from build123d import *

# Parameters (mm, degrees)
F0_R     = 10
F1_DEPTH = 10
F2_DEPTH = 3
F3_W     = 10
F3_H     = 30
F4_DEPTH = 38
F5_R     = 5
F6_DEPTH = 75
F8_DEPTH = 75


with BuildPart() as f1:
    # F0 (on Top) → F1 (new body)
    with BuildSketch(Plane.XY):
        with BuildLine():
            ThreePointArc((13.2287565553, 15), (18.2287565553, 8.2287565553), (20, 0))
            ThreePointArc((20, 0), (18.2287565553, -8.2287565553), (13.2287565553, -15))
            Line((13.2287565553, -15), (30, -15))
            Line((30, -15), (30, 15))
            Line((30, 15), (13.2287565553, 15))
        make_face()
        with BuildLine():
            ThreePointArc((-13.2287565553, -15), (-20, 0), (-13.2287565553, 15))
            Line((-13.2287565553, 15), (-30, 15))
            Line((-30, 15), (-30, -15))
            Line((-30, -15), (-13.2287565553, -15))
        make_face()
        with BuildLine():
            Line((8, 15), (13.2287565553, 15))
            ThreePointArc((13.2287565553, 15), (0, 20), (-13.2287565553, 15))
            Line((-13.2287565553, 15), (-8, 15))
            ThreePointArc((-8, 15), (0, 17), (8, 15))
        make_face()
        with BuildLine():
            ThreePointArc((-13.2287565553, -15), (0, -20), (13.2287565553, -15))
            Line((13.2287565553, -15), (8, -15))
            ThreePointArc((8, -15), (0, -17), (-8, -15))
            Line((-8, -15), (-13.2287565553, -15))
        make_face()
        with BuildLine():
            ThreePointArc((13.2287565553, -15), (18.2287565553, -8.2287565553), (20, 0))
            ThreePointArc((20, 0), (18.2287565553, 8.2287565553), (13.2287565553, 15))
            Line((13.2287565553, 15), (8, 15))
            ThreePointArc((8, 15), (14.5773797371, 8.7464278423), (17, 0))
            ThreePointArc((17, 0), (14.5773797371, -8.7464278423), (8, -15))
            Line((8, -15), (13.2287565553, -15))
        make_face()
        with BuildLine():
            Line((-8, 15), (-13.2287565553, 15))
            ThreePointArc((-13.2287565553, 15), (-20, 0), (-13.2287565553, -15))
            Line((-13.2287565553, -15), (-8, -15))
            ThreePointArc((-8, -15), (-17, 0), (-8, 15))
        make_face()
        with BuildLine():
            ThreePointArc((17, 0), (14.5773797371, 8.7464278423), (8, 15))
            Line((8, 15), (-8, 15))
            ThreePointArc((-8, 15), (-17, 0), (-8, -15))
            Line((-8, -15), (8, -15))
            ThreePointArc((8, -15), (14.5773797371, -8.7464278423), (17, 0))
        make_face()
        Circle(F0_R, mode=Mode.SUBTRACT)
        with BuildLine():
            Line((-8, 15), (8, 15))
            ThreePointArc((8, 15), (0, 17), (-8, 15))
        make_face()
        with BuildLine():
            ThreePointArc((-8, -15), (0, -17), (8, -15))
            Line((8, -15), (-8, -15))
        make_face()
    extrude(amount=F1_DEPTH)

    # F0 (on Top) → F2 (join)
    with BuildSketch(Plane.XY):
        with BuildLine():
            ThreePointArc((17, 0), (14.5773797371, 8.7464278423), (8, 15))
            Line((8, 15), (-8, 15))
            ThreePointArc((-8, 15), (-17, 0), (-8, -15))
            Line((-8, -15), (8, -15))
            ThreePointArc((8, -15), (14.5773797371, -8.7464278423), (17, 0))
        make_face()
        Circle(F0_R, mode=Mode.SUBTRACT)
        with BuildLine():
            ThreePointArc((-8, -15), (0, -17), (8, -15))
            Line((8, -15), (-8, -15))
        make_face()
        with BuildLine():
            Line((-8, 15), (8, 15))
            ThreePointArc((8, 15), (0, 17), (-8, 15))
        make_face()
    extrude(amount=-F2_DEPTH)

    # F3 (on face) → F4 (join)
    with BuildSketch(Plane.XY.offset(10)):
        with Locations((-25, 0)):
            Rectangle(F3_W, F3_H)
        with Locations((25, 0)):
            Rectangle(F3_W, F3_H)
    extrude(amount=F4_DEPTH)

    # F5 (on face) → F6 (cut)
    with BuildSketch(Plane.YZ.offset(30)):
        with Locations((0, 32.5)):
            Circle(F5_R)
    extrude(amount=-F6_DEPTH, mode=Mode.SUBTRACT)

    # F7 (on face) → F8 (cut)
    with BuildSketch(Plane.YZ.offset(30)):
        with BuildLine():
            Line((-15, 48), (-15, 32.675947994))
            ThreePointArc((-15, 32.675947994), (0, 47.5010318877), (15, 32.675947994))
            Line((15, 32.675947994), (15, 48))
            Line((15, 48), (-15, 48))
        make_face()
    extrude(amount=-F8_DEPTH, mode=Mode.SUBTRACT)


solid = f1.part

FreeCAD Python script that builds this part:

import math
import FreeCAD as App
import Part
import Sketcher

V = App.Vector

doc = App.newDocument("Part")
body = doc.addObject("PartDesign::Body", "Body")

sketch1 = body.newObject("Sketcher::SketchObject", "Sketch")
sketch1.AttachmentSupport = (doc.getObject("XY_Plane"), [""])
sketch1.MapMode = "FlatFace"
sketch1.addGeometry(Part.LineSegment(V(13.228757, -15, 0), V(30, -15, 0)), False)
sketch1.addGeometry(Part.LineSegment(V(30, -15, 0), V(30, 15, 0)), False)
sketch1.addGeometry(Part.LineSegment(V(30, 15, 0), V(13.228757, 15, 0)), False)
sketch1.addGeometry(Part.ArcOfCircle(Part.Circle(V(0, 0, 0), V(0, 0, 1), 20), math.radians(48.590378), math.radians(131.409622)), False)
sketch1.addGeometry(Part.LineSegment(V(-13.228757, 15, 0), V(-30, 15, 0)), False)
sketch1.addGeometry(Part.LineSegment(V(-30, 15, 0), V(-30, -15, 0)), False)
sketch1.addGeometry(Part.LineSegment(V(-30, -15, 0), V(-13.228757, -15, 0)), False)
sketch1.addGeometry(Part.ArcOfCircle(Part.Circle(V(0, 0, 0), V(0, 0, 1), 20), math.radians(-131.409622), math.radians(-48.590378)), False)
sketch1.addGeometry(Part.Circle(V(0, 0, 0), V(0, 0, 1), 10), False)
sketch1.addConstraint(Sketcher.Constraint("Coincident", 0, 2, 1, 1))
sketch1.addConstraint(Sketcher.Constraint("Coincident", 1, 2, 2, 1))
sketch1.addConstraint(Sketcher.Constraint("Coincident", 2, 2, 3, 1))
sketch1.addConstraint(Sketcher.Constraint("Coincident", 3, 2, 4, 1))
sketch1.addConstraint(Sketcher.Constraint("Coincident", 4, 2, 5, 1))
sketch1.addConstraint(Sketcher.Constraint("Coincident", 5, 2, 6, 1))
sketch1.addConstraint(Sketcher.Constraint("Coincident", 6, 2, 7, 1))
sketch1.addConstraint(Sketcher.Constraint("Coincident", 7, 2, 0, 1))
sketch1.addConstraint(Sketcher.Constraint("Horizontal", 0))
sketch1.addConstraint(Sketcher.Constraint("Vertical", 1))
sketch1.addConstraint(Sketcher.Constraint("Horizontal", 2))
sketch1.addConstraint(Sketcher.Constraint("Horizontal", 4))
sketch1.addConstraint(Sketcher.Constraint("Vertical", 5))
sketch1.addConstraint(Sketcher.Constraint("Horizontal", 6))
sketch1.addConstraint(Sketcher.Constraint("Coincident", 3, 3, -1, 1))
sketch1.addConstraint(Sketcher.Constraint("Coincident", 7, 3, -1, 1))
sketch1.addConstraint(Sketcher.Constraint("Coincident", 8, 3, -1, 1))
sketch1.addConstraint(Sketcher.Constraint("Equal", 3, 7))
sketch1.addConstraint(Sketcher.Constraint("Symmetric", 0, 2, 4, 2, -1, 1))
sketch1.addConstraint(Sketcher.Constraint("Horizontal", 2, 2, 3, 2))
sketch1.addConstraint(Sketcher.Constraint("Horizontal", 0, 2, 5, 2))
sketch1.addConstraint(Sketcher.Constraint("Diameter", 8, 20.0))
sketch1.addConstraint(Sketcher.Constraint("Radius", 3, 20.0))
sketch1.addConstraint(Sketcher.Constraint("DistanceY", 1, 1, 1, 2, 30.0))
sketch1.addConstraint(Sketcher.Constraint("DistanceX", -1, 1, 0, 2, 30.0))
pad1 = body.newObject("PartDesign::Pad", "Pad")
pad1.Profile = sketch1
pad1.Length = 10

sketch2 = body.newObject("Sketcher::SketchObject", "Sketch001")
sketch2.AttachmentSupport = (doc.getObject("XY_Plane"), [""])
sketch2.MapMode = "FlatFace"
sketch2.addGeometry(Part.ArcOfCircle(Part.Circle(V(0, 0, 0), V(0, 0, 1), 17), math.radians(0), math.radians(61.927513)), False)
sketch2.addGeometry(Part.ArcOfCircle(Part.Circle(V(0, 0, 0), V(0, 0, 1), 17), math.radians(61.927513), math.radians(298.072487)), False)
sketch2.addGeometry(Part.ArcOfCircle(Part.Circle(V(0, 0, 0), V(0, 0, 1), 17), math.radians(-61.927513), math.radians(0)), False)
sketch2.addGeometry(Part.Circle(V(0, 0, 0), V(0, 0, 1), 10), False)
sketch2.addConstraint(Sketcher.Constraint("Tangent", 0, 2, 1, 1))
sketch2.addConstraint(Sketcher.Constraint("Tangent", 1, 2, 2, 1))
sketch2.addConstraint(Sketcher.Constraint("Tangent", 2, 2, 0, 1))
sketch2.addConstraint(Sketcher.Constraint("Coincident", 0, 3, -1, 1))
sketch2.addConstraint(Sketcher.Constraint("Coincident", 3, 3, -1, 1))
sketch2.addConstraint(Sketcher.Constraint("PointOnObject", 2, 2, -1))
sketch2.addConstraint(Sketcher.Constraint("Vertical", 0, 2, 1, 2))
sketch2.addConstraint(Sketcher.Constraint("Diameter", 3, 20.0))
sketch2.addConstraint(Sketcher.Constraint("Radius", 0, 17.0))
sketch2.addConstraint(Sketcher.Constraint("DistanceX", -1, 1, 0, 2, 8.0))
pad2 = body.newObject("PartDesign::Pad", "Pad001")
pad2.Profile = sketch2
pad2.Length = 3
pad2.Reversed = True

sketch3 = body.newObject("Sketcher::SketchObject", "Sketch002")
sketch3.AttachmentSupport = (doc.getObject("XY_Plane"), [""])
sketch3.MapMode = "FlatFace"
sketch3.AttachmentOffset = App.Placement(V(0, 0, 10), App.Rotation())
sketch3.addGeometry(Part.LineSegment(V(-30, 15, 0), V(-30, -15, 0)), False)
sketch3.addGeometry(Part.LineSegment(V(-30, -15, 0), V(-20, -15, 0)), False)
sketch3.addGeometry(Part.LineSegment(V(-20, -15, 0), V(-20, 15, 0)), False)
sketch3.addGeometry(Part.LineSegment(V(-20, 15, 0), V(-30, 15, 0)), False)
sketch3.addGeometry(Part.LineSegment(V(20, 15, 0), V(20, -15, 0)), False)
sketch3.addGeometry(Part.LineSegment(V(20, -15, 0), V(30, -15, 0)), False)
sketch3.addGeometry(Part.LineSegment(V(30, -15, 0), V(30, 15, 0)), False)
sketch3.addGeometry(Part.LineSegment(V(30, 15, 0), V(20, 15, 0)), False)
sketch3.addConstraint(Sketcher.Constraint("Coincident", 0, 2, 1, 1))
sketch3.addConstraint(Sketcher.Constraint("Coincident", 1, 2, 2, 1))
sketch3.addConstraint(Sketcher.Constraint("Coincident", 2, 2, 3, 1))
sketch3.addConstraint(Sketcher.Constraint("Coincident", 3, 2, 0, 1))
sketch3.addConstraint(Sketcher.Constraint("Coincident", 4, 2, 5, 1))
sketch3.addConstraint(Sketcher.Constraint("Coincident", 5, 2, 6, 1))
sketch3.addConstraint(Sketcher.Constraint("Coincident", 6, 2, 7, 1))
sketch3.addConstraint(Sketcher.Constraint("Coincident", 7, 2, 4, 1))
sketch3.addConstraint(Sketcher.Constraint("Vertical", 0))
sketch3.addConstraint(Sketcher.Constraint("Horizontal", 1))
sketch3.addConstraint(Sketcher.Constraint("Vertical", 2))
sketch3.addConstraint(Sketcher.Constraint("Horizontal", 3))
sketch3.addConstraint(Sketcher.Constraint("Vertical", 4))
sketch3.addConstraint(Sketcher.Constraint("Horizontal", 5))
sketch3.addConstraint(Sketcher.Constraint("Vertical", 6))
sketch3.addConstraint(Sketcher.Constraint("Horizontal", 7))
sketch3.addConstraint(Sketcher.Constraint("Symmetric", 2, 2, 4, 2, -1, 1))
sketch3.addConstraint(Sketcher.Constraint("Symmetric", 0, 2, 6, 2, -1, 1))
sketch3.addConstraint(Sketcher.Constraint("Horizontal", 1, 2, 4, 2))
sketch3.addConstraint(Sketcher.Constraint("DistanceX", 1, 1, 1, 2, 10.0))
sketch3.addConstraint(Sketcher.Constraint("DistanceY", 0, 2, 0, 1, 30.0))
sketch3.addConstraint(Sketcher.Constraint("DistanceX", 0, 2, -1, 1, 30.0))
pad3 = body.newObject("PartDesign::Pad", "Pad002")
pad3.Profile = sketch3
pad3.Length = 38

sketch4 = body.newObject("Sketcher::SketchObject", "Sketch003")
sketch4.AttachmentSupport = (doc.getObject("YZ_Plane"), [""])
sketch4.MapMode = "FlatFace"
sketch4.AttachmentOffset = App.Placement(V(0, 0, 30), App.Rotation())
sketch4.addGeometry(Part.Circle(V(0, 32.5, 0), V(0, 0, 1), 5), False)
sketch4.addConstraint(Sketcher.Constraint("PointOnObject", 0, 3, -2))
sketch4.addConstraint(Sketcher.Constraint("Diameter", 0, 10.0))
sketch4.addConstraint(Sketcher.Constraint("DistanceY", -1, 1, 0, 3, 32.5))
pocket1 = body.newObject("PartDesign::Pocket", "Pocket")
pocket1.Profile = sketch4
pocket1.Length = 75

sketch5 = body.newObject("Sketcher::SketchObject", "Sketch004")
sketch5.AttachmentSupport = (doc.getObject("YZ_Plane"), [""])
sketch5.MapMode = "FlatFace"
sketch5.AttachmentOffset = App.Placement(V(0, 0, 30), App.Rotation())
sketch5.addGeometry(Part.LineSegment(V(-15, 48, 0), V(-15, 32.675948, 0)), False)
sketch5.addGeometry(Part.ArcOfCircle(Part.Circle(V(0, 32.5, 0), V(0, 0, 1), 15.001032), math.radians(0.672041), math.radians(179.327959)), False)
sketch5.addGeometry(Part.LineSegment(V(15, 32.675948, 0), V(15, 48, 0)), False)
sketch5.addGeometry(Part.LineSegment(V(15, 48, 0), V(-15, 48, 0)), False)
sketch5.addConstraint(Sketcher.Constraint("Coincident", 0, 2, 1, 2))
sketch5.addConstraint(Sketcher.Constraint("Coincident", 1, 1, 2, 1))
sketch5.addConstraint(Sketcher.Constraint("Coincident", 2, 2, 3, 1))
sketch5.addConstraint(Sketcher.Constraint("Coincident", 3, 2, 0, 1))
sketch5.addConstraint(Sketcher.Constraint("Vertical", 0))
sketch5.addConstraint(Sketcher.Constraint("Vertical", 2))
sketch5.addConstraint(Sketcher.Constraint("Horizontal", 3))
sketch5.addConstraint(Sketcher.Constraint("Symmetric", 0, 2, 1, 1, -2))
sketch5.addConstraint(Sketcher.Constraint("DistanceX", 3, 2, 3, 1, 30.0))
sketch5.addConstraint(Sketcher.Constraint("DistanceY", -1, 1, 2, 2, 48.0))
sketch5.addConstraint(Sketcher.Constraint("DistanceY", -1, 1, 1, 3, 32.5))
sketch5.addConstraint(Sketcher.Constraint("Radius", 1, 15.001032))
pocket2 = body.newObject("PartDesign::Pocket", "Pocket001")
pocket2.Profile = sketch5
pocket2.Length = 75

doc.recompute()
